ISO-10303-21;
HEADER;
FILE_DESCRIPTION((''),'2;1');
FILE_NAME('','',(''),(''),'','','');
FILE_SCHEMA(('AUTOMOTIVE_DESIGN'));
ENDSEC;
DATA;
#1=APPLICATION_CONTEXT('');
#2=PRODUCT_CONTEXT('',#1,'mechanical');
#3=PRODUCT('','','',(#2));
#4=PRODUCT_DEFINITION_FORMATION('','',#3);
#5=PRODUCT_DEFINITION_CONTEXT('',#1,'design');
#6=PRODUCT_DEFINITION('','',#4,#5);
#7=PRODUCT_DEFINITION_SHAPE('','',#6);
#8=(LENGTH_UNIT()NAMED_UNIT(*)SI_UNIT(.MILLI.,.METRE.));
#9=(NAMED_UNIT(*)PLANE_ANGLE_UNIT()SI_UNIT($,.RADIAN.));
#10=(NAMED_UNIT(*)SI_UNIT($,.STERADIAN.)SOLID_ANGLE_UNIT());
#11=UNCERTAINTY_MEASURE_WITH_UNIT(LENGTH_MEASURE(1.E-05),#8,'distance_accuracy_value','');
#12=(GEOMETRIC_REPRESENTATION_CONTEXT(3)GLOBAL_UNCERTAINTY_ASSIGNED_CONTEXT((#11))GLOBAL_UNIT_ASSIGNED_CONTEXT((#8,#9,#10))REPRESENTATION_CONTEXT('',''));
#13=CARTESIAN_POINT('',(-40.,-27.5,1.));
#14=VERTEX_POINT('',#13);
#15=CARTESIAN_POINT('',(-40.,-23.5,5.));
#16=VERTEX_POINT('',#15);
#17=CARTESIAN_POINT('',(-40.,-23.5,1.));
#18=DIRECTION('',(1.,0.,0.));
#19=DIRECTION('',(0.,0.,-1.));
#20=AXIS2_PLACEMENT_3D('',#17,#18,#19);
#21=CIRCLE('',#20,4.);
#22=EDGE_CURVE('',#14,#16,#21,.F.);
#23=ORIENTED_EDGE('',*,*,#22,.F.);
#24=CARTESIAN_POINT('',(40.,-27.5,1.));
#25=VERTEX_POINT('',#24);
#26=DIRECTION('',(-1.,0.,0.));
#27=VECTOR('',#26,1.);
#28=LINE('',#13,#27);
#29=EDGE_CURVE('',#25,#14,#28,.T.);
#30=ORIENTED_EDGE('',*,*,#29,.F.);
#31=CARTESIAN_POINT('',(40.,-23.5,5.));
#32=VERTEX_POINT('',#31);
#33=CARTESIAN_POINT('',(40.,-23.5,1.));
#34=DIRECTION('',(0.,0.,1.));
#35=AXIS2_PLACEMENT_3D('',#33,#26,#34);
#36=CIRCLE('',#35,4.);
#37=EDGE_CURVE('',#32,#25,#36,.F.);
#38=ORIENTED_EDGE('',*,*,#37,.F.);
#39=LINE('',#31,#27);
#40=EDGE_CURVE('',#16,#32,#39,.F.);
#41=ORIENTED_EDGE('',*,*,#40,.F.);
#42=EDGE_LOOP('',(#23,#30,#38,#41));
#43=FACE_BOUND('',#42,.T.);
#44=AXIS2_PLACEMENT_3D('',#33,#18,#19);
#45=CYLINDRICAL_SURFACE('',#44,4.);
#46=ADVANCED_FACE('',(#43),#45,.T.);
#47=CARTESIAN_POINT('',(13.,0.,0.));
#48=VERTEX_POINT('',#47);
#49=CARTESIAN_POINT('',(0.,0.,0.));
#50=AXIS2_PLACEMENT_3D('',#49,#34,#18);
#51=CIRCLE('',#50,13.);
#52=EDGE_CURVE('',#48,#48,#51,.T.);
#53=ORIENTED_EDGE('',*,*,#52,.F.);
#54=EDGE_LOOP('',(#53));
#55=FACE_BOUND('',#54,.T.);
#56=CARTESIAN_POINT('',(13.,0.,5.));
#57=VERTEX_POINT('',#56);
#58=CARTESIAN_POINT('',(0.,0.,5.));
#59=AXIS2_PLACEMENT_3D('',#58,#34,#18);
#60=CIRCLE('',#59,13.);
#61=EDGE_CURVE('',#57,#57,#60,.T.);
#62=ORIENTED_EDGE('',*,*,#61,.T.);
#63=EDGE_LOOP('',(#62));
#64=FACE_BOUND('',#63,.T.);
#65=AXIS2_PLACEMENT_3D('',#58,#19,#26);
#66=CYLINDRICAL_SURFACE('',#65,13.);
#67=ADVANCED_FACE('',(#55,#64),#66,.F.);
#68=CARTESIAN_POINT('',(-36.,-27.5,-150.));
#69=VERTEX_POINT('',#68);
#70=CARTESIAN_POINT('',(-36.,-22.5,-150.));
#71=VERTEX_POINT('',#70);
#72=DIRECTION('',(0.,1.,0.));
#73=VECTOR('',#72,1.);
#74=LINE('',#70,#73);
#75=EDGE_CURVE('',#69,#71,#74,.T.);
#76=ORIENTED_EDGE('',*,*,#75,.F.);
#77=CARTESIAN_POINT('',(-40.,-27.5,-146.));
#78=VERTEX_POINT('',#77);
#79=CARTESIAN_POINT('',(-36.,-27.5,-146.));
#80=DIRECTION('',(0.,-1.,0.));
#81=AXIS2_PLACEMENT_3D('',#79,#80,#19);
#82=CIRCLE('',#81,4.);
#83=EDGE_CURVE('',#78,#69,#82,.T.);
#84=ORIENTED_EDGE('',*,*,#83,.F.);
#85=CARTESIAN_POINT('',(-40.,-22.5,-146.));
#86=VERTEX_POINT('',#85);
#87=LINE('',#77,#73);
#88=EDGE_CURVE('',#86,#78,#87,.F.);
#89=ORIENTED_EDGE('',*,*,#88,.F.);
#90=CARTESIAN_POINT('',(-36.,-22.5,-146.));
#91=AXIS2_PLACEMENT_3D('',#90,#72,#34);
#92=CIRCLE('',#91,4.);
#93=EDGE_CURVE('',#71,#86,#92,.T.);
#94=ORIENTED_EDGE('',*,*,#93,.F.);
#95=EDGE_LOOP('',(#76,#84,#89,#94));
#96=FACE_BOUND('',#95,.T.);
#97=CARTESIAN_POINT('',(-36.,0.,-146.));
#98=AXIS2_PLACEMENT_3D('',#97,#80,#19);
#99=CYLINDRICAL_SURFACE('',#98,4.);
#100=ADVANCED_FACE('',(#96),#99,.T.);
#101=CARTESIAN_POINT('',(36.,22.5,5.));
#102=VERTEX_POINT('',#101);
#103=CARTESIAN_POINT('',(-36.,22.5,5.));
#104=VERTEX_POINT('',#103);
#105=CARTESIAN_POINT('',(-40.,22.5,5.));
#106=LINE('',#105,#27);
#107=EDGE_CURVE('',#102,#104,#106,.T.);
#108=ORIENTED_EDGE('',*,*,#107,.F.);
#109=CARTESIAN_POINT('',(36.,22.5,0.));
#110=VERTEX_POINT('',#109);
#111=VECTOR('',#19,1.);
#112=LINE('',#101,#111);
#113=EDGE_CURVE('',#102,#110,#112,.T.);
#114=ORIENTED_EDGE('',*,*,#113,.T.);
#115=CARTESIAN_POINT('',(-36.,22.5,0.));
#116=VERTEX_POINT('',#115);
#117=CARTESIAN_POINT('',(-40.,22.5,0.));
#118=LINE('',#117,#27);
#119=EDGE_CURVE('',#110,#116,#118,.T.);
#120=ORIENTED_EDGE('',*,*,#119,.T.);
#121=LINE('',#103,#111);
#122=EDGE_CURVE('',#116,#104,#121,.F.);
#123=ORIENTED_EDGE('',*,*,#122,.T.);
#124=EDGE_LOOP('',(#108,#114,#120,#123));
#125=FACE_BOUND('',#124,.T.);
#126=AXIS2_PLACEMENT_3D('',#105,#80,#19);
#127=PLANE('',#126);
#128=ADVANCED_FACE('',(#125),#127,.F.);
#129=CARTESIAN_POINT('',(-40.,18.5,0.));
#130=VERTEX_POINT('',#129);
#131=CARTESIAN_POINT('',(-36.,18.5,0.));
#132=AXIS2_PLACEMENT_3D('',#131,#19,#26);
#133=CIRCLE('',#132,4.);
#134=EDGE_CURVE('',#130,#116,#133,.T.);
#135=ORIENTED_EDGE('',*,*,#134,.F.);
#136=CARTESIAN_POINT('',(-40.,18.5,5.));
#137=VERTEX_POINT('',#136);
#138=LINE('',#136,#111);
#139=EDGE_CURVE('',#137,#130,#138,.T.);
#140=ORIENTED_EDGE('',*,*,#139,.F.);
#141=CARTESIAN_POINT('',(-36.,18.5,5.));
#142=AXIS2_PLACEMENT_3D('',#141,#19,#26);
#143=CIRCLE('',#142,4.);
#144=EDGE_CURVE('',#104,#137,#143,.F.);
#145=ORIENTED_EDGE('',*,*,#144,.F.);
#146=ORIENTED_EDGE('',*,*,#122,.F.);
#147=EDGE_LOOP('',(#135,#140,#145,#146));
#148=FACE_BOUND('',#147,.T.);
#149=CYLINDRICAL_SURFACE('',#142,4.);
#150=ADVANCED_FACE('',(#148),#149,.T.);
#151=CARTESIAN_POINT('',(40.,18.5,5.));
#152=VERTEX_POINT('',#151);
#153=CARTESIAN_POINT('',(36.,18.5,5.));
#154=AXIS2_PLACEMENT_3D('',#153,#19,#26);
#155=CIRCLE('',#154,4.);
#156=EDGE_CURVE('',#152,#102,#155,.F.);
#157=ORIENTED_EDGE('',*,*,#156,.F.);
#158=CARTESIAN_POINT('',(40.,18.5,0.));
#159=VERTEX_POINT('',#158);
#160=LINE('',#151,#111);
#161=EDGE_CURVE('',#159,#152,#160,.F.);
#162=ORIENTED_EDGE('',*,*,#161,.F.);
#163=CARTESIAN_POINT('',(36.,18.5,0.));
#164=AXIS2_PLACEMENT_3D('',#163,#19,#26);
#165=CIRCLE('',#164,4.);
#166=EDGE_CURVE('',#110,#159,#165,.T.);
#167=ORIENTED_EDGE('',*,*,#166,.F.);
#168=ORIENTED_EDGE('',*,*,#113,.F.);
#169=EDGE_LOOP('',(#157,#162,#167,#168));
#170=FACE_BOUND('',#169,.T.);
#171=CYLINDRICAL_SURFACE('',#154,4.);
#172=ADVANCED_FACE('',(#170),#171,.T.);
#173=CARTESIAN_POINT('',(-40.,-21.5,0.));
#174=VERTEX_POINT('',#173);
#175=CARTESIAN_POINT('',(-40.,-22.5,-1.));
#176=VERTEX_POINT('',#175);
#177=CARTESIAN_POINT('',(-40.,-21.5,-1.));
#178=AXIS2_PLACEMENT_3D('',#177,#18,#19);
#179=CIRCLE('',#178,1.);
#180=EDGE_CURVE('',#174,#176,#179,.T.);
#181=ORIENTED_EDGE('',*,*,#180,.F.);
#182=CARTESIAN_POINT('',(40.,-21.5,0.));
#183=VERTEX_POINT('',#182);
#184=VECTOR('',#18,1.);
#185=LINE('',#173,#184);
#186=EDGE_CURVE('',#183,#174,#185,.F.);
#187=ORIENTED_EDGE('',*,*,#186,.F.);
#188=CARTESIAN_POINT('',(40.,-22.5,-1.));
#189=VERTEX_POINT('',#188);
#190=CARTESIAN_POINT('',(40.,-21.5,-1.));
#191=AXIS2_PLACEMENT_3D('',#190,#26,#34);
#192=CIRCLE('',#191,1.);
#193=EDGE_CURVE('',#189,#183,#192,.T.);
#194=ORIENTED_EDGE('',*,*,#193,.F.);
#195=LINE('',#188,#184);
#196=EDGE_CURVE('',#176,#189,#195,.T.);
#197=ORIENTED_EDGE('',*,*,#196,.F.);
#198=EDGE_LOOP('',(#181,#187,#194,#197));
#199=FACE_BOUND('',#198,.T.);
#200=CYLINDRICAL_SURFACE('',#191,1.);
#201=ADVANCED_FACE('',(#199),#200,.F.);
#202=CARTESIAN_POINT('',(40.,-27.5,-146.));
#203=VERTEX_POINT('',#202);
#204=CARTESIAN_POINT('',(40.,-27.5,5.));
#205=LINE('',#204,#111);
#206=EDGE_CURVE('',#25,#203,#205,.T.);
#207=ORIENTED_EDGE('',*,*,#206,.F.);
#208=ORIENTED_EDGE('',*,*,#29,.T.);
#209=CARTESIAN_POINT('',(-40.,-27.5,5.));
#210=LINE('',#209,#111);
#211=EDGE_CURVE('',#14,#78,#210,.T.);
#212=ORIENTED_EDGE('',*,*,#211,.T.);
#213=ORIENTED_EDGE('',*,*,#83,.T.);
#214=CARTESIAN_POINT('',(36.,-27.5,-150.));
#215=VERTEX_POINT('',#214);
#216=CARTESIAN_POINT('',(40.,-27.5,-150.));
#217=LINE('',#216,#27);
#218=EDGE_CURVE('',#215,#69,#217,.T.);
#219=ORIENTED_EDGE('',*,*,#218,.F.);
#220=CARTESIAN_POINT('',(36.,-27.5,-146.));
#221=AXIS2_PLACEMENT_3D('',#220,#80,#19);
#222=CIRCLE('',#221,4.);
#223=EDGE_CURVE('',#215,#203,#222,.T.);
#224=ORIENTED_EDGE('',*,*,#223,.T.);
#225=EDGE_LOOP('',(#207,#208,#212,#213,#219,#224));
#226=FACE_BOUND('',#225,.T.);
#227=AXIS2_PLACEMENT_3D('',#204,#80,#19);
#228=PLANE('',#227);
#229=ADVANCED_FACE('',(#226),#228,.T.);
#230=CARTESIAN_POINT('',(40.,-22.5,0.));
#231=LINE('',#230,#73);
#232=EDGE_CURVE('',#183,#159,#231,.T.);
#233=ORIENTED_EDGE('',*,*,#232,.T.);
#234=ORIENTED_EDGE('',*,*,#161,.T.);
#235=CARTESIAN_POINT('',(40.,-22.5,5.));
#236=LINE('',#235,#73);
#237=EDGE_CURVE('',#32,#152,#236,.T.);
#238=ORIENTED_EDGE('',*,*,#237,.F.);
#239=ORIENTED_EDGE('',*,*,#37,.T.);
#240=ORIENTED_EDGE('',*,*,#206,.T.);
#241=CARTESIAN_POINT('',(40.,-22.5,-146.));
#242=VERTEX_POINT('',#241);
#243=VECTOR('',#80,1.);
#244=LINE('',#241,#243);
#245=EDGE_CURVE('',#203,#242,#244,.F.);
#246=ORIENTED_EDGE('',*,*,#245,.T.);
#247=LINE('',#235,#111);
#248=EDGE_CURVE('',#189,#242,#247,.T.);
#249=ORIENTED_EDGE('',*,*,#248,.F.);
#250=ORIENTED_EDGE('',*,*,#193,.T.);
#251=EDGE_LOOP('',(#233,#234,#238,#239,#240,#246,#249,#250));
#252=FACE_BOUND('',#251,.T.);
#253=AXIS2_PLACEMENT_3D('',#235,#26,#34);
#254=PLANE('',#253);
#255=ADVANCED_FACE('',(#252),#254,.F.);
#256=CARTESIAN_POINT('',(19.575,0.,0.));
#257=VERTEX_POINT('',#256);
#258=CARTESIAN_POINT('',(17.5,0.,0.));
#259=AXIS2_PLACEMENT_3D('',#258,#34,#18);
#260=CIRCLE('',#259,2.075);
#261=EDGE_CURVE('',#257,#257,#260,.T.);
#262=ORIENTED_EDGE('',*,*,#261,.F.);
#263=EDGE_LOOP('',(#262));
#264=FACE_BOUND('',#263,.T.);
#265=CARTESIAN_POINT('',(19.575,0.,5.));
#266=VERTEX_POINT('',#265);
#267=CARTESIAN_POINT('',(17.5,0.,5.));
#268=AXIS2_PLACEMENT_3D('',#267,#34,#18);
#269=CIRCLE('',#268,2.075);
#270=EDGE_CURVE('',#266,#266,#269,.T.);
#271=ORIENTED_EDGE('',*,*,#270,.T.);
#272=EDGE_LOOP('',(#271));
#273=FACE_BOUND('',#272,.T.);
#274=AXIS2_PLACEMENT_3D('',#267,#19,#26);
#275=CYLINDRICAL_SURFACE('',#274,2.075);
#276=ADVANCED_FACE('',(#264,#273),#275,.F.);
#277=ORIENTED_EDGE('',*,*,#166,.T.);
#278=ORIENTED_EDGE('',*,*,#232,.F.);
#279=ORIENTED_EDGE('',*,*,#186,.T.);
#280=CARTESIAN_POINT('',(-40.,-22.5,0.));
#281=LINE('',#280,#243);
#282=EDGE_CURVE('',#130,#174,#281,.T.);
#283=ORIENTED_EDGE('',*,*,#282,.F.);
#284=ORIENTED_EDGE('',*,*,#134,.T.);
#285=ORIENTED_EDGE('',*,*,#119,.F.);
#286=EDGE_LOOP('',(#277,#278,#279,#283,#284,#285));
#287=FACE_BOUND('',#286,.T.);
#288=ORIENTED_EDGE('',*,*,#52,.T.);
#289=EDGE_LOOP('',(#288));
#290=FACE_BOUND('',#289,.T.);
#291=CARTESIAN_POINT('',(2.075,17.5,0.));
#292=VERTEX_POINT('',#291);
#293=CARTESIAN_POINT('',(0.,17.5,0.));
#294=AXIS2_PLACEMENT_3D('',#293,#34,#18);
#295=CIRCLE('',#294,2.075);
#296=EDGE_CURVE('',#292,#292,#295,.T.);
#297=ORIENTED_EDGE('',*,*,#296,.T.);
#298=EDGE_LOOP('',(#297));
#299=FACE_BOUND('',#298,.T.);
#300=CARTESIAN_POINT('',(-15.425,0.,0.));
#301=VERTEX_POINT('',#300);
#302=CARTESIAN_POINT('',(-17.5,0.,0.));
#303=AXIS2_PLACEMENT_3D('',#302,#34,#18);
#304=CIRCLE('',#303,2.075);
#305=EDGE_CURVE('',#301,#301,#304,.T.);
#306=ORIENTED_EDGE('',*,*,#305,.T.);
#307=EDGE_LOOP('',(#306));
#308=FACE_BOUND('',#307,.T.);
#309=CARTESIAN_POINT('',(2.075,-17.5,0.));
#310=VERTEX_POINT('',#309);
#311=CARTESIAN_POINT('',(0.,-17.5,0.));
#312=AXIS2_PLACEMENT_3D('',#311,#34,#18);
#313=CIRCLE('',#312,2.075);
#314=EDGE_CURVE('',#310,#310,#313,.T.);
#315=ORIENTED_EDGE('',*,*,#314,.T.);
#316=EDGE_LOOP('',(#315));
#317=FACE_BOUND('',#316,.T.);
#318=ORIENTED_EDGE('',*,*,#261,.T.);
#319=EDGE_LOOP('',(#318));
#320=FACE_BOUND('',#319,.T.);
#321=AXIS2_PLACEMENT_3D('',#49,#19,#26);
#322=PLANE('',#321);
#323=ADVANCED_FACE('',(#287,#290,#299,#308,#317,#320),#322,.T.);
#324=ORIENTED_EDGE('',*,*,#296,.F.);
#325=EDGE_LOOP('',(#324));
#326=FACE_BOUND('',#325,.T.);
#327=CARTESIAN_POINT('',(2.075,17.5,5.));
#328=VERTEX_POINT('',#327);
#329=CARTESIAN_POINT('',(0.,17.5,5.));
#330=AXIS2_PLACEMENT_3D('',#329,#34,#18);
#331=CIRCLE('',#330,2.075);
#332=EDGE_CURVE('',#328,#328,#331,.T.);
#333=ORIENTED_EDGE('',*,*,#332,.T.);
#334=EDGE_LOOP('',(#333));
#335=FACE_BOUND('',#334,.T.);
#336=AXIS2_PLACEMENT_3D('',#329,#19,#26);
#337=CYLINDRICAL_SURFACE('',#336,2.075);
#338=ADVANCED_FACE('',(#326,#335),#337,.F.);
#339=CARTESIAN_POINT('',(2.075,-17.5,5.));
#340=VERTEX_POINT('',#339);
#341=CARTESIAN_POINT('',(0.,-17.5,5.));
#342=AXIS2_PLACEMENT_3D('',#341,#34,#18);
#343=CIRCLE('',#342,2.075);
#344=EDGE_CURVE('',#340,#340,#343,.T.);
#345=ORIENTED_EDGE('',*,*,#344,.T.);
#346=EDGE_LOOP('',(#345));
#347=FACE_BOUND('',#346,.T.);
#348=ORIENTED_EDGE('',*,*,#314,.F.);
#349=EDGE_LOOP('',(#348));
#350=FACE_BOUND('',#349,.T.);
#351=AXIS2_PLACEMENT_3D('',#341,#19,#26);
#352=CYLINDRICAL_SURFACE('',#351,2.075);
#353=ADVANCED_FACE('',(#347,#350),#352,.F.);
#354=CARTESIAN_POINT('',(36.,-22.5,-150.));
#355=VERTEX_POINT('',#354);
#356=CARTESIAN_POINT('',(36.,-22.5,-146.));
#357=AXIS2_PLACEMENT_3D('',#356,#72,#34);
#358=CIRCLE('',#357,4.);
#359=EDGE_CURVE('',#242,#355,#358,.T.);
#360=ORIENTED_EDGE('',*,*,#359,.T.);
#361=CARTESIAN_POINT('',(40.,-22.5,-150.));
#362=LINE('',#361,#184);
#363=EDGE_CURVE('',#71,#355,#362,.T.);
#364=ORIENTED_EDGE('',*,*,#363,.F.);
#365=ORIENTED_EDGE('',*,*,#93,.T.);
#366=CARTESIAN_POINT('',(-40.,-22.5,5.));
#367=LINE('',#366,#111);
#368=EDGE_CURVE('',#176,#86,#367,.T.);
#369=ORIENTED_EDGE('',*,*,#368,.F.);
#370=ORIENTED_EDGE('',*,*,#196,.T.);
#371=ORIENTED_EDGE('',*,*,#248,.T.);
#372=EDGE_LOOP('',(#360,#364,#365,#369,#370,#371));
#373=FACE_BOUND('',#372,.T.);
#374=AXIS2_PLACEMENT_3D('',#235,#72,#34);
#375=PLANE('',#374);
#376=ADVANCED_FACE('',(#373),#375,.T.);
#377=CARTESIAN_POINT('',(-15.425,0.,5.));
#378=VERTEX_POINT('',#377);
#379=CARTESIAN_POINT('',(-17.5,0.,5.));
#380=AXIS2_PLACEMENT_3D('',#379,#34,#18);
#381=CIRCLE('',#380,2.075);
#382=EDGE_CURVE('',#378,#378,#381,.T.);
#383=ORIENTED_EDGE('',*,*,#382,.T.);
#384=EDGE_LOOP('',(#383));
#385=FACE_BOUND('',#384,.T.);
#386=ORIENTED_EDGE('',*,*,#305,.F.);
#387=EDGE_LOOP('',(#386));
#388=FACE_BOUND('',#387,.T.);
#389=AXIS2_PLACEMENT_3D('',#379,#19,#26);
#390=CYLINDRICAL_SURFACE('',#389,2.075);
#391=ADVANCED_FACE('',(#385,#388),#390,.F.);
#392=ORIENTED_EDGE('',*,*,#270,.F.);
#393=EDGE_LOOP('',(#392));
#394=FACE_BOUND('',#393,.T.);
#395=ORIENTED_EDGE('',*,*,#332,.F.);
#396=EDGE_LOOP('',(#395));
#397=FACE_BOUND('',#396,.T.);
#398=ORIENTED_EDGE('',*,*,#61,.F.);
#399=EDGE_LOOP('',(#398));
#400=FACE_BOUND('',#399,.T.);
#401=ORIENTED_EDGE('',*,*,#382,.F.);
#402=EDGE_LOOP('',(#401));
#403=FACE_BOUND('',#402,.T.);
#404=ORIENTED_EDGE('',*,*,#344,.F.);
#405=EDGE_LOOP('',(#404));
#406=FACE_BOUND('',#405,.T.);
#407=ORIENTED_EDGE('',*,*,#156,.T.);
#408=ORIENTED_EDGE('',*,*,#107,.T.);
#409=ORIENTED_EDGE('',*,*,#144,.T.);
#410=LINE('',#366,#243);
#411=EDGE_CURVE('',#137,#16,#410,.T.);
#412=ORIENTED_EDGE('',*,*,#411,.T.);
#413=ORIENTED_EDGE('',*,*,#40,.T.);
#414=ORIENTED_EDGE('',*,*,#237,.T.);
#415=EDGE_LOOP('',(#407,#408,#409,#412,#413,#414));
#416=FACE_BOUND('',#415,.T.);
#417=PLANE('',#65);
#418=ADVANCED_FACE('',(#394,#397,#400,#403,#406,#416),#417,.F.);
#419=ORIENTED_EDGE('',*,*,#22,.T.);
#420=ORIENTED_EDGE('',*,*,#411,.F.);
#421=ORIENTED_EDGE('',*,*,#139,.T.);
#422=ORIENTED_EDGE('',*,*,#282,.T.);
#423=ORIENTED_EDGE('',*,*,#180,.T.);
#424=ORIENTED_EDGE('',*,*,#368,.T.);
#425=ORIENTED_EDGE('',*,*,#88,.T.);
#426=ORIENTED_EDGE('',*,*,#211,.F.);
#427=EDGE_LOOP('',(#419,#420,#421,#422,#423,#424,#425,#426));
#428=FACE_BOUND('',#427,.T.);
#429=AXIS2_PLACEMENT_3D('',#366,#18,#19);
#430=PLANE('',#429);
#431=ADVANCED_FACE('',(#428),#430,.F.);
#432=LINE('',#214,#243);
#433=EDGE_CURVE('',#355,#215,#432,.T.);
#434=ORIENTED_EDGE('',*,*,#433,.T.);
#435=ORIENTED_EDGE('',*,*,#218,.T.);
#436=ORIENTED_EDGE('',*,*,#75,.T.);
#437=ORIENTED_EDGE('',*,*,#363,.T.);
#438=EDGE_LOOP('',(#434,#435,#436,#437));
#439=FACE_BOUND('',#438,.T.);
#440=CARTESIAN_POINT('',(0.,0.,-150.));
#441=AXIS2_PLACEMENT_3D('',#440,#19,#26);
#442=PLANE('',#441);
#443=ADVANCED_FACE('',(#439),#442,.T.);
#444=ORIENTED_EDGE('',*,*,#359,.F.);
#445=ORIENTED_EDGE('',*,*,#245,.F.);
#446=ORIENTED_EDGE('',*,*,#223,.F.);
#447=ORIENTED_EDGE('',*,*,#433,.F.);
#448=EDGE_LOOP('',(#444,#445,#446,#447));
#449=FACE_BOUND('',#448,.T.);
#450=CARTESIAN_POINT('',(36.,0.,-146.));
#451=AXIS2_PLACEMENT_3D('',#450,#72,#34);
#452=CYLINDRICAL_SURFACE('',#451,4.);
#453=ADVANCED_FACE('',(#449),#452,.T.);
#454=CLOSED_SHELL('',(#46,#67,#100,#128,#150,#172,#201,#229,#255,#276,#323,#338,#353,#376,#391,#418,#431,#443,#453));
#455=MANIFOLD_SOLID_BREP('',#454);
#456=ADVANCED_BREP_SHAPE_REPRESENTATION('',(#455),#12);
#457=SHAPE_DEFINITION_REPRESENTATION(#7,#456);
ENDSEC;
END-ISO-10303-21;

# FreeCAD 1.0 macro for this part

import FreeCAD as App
import Part
import Sketcher
from FreeCAD import Vector
Q = App.Units.Quantity


def edges_at(feature, points):
    """Names of the edges that pass closest to the given points."""
    edges = feature.Shape.Edges
    near = lambda p: min(range(len(edges)), key=lambda i: edges[i].distToShape(Part.Vertex(*p))[0])
    return sorted({f"Edge{near(p) + 1}" for p in points})


def add_polygon(sketch, points):
    """Adds a closed chain of lines whose ends are joined by coincident constraints."""
    first, n = sketch.GeometryCount, len(points)
    for a, b in zip(points, points[1:] + points[:1]):
        sketch.addGeometry(Part.LineSegment(App.Vector(*a, 0), App.Vector(*b, 0)), False)
    for i in range(n):
        sketch.addConstraint(Sketcher.Constraint("Coincident", first + i, 2, first + (i + 1) % n, 1))

doc = App.newDocument("Part")
body = doc.addObject("PartDesign::Body", "Body")

# Sketch on XY plane
sketch1 = body.newObject("Sketcher::SketchObject", "Sketch")
sketch1.AttachmentSupport = (doc.getObject("XY_Plane"), [""])
sketch1.MapMode = "FlatFace"
add_polygon(sketch1, [(-40, 22.5), (-40, -22.5), (40, -22.5), (40, 22.5)])  # lines 0-3
sketch1.addGeometry(Part.Circle(Vector(0, -17.5, 0), Vector(0, 0, 1), 2.1), False)  # 4
sketch1.addGeometry(Part.Circle(Vector(-17.5, 0, 0), Vector(0, 0, 1), 2.1), False)  # 5
sketch1.addGeometry(Part.Circle(Vector(0, 0, 0), Vector(0, 0, 1), 13), False)  # 6
sketch1.addGeometry(Part.Circle(Vector(17.5, 0, 0), Vector(0, 0, 1), 2.1), False)  # 7
sketch1.addGeometry(Part.Circle(Vector(0, 17.5, 0), Vector(0, 0, 1), 2.1), False)  # 8
sketch1.addConstraint([
    Sketcher.Constraint("Vertical", 0),
    Sketcher.Constraint("Horizontal", 1),
    Sketcher.Constraint("Vertical", 2),
    Sketcher.Constraint("Horizontal", 3),
    Sketcher.Constraint("Coincident", 6, 3, -1, 1),
    Sketcher.Constraint("Equal", 4, 5),
    Sketcher.Constraint("Equal", 5, 7),
    Sketcher.Constraint("Equal", 7, 8),
    Sketcher.Constraint("Symmetric", 5, 3, 7, 3, -1, 1),
    Sketcher.Constraint("Symmetric", 4, 3, 8, 3, -1, 1),
    Sketcher.Constraint("Symmetric", 0, 2, 2, 2, -1, 1),
    Sketcher.Constraint("PointOnObject", 4, 3, -2),
    Sketcher.Constraint("PointOnObject", 5, 3, -1),
    Sketcher.Constraint("Diameter", 6, Q("26 mm")),
    Sketcher.Constraint("Diameter", 4, Q("4.15 mm")),
    Sketcher.Constraint("DistanceX", 1, 1, 1, 2, Q("80 mm")),
    Sketcher.Constraint("DistanceY", 0, 2, 0, 1, Q("45 mm")),
    Sketcher.Constraint("DistanceX", 5, 3, 7, 3, Q("35 mm")),
    Sketcher.Constraint("DistanceY", 4, 3, 8, 3, Q("35 mm")),
])
pad1 = body.newObject("PartDesign::Pad", "Pad")
pad1.Profile = sketch1
pad1.Length = 5

# Sketch on XY plane
sketch2 = body.newObject("Sketcher::SketchObject", "Sketch001")
sketch2.AttachmentSupport = (doc.getObject("XY_Plane"), [""])
sketch2.MapMode = "FlatFace"
add_polygon(sketch2, [(40, -22), (40, -28), (-40, -28), (-40, -22)])  # lines 0-3
sketch2.addConstraint([
    Sketcher.Constraint("Vertical", 0),
    Sketcher.Constraint("Horizontal", 1),
    Sketcher.Constraint("Vertical", 2),
    Sketcher.Constraint("Horizontal", 3),
    Sketcher.Constraint("DistanceX", 1, 2, 1, 1, Q("80 mm")),
    Sketcher.Constraint("DistanceY", 0, 2, 0, 1, Q("5 mm")),
    Sketcher.Constraint("DistanceX", -1, 1, 0, 2, Q("40 mm")),
    Sketcher.Constraint("DistanceY", 0, 2, -1, 1, Q("27.5 mm")),
])
pad2 = body.newObject("PartDesign::Pad", "Pad001")
pad2.Profile = sketch2
pad2.Type = "TwoLengths"
pad2.Length = 150
pad2.Length2 = 5
pad2.Reversed = True
doc.recompute()

fillet = body.newObject("PartDesign::Fillet", "Fillet")
fillet.Base = (pad2, edges_at(pad2, [
    (0, -27.5, 5),
    (40, -25, -150),
    (-40, -25, -150),
    (-40, 22.5, 2.5),
    (40, 22.5, 2.5),
]))
fillet.Radius = 4
doc.recompute()

fillet2 = body.newObject("PartDesign::Fillet", "Fillet001")
fillet2.Base = (fillet, edges_at(fillet, [(0, -22.5, 0)]))
fillet2.Radius = 1

doc.recompute()
